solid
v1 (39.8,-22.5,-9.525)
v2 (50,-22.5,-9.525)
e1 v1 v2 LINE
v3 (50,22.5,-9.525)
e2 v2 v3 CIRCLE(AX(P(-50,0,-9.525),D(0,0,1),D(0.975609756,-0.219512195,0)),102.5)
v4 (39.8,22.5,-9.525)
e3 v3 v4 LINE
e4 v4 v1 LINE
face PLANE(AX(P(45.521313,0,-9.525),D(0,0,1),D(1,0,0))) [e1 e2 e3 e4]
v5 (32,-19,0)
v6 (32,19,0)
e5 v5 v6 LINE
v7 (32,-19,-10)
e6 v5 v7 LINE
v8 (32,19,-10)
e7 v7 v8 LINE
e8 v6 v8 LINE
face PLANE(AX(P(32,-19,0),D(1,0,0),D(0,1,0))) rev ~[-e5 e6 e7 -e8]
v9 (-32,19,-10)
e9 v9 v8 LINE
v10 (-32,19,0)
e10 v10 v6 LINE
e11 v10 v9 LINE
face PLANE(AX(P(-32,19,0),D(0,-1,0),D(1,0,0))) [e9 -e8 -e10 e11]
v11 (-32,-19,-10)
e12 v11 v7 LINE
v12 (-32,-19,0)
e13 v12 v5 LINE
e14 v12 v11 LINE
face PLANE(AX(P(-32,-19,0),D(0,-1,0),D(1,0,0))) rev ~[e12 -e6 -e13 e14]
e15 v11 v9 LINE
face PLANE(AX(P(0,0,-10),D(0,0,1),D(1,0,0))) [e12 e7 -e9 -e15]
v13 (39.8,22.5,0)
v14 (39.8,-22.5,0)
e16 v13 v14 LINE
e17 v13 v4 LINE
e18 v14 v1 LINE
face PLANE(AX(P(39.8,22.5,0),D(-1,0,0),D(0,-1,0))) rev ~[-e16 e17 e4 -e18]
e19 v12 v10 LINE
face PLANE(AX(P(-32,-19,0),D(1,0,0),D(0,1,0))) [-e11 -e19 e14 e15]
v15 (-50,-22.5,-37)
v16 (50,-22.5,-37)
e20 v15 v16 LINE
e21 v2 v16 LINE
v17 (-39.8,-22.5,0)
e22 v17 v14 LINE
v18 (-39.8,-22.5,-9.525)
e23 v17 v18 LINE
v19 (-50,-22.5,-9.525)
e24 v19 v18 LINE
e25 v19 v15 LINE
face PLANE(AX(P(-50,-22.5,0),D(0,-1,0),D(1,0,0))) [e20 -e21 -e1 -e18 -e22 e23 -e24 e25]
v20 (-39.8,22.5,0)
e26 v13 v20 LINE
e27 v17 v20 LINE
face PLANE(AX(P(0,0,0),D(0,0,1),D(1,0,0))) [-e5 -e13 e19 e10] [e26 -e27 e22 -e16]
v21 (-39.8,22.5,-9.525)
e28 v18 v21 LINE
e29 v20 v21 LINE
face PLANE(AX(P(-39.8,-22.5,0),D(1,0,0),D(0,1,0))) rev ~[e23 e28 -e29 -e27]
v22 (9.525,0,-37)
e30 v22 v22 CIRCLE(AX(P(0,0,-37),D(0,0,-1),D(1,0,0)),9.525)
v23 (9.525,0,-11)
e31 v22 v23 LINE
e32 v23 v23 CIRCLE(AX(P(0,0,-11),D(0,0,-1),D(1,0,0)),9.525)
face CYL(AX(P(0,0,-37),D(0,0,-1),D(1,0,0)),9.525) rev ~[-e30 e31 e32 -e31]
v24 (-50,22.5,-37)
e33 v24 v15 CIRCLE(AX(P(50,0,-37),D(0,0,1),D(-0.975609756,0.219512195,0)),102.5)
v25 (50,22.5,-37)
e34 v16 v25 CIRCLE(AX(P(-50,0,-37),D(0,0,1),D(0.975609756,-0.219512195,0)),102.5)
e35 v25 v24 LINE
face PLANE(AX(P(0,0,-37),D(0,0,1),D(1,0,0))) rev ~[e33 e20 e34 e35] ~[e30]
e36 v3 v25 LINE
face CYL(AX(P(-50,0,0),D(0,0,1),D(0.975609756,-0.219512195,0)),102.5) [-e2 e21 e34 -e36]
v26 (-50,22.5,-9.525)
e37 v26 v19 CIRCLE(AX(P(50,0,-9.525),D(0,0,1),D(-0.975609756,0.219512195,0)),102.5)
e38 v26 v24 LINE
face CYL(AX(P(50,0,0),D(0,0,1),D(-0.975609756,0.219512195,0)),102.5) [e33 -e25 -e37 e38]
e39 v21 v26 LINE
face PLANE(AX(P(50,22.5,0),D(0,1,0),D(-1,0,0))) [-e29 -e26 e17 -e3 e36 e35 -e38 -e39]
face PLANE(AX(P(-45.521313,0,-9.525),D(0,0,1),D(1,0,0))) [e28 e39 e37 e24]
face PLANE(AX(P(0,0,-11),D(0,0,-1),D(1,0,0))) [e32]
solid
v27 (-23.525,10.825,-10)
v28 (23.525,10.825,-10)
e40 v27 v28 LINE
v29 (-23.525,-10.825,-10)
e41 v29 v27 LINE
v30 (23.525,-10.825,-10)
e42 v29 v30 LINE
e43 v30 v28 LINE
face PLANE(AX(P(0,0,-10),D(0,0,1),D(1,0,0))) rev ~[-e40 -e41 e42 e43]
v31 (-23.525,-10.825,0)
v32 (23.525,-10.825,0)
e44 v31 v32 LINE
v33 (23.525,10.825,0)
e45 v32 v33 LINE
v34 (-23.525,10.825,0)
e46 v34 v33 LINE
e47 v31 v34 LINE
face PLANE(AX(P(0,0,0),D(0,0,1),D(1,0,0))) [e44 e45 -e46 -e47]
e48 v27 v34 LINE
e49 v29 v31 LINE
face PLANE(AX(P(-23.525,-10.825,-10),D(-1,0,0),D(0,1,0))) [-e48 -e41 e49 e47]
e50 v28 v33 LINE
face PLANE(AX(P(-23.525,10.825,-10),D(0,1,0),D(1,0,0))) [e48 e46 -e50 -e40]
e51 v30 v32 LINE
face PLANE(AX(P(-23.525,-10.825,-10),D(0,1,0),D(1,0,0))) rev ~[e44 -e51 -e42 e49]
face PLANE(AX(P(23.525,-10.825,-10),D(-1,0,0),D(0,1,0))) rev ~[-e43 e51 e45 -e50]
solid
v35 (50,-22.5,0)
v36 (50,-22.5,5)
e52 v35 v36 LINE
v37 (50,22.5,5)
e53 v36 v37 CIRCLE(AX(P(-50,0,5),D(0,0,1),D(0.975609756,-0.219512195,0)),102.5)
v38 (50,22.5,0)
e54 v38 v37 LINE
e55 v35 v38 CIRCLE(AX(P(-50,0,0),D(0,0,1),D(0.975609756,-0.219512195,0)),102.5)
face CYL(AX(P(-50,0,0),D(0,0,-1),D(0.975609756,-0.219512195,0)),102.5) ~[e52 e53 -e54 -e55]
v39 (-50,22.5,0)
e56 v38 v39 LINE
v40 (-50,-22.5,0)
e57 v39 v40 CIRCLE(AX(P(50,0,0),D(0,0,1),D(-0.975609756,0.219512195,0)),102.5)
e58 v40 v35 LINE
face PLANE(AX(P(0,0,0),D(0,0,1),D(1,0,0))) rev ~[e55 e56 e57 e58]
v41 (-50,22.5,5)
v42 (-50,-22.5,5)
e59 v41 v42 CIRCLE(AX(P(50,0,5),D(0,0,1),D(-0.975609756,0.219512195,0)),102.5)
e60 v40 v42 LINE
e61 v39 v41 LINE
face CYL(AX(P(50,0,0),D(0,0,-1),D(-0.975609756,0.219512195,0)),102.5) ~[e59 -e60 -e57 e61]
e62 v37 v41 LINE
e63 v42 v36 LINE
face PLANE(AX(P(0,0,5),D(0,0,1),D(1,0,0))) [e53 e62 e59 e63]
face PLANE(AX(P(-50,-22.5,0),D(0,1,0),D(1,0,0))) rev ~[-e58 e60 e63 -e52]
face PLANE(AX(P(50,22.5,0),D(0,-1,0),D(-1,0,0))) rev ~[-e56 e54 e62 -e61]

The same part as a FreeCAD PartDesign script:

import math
import FreeCAD as App
import Part
import Sketcher

V = App.Vector

doc = App.newDocument("Part")
params = doc.addObject("Spreadsheet::Sheet", "Params")
for row, (alias, value) in enumerate([
    ("sketch1_radius", "102.5 mm"),
    ("sketch1_width", "100 mm"),
    ("pad1_length", "37 mm"),
    ("sketch2_width", "64 mm"),
    ("sketch2_height", "38 mm"),
    ("pocket1_length", "10 mm"),
    ("sketch3_radius", "102.5 mm"),
    ("sketch3_height", "45 mm"),
    ("sketch3_width", "10.2 mm"),
    ("pocket2_length", "9.525 mm"),
    ("sketch4_diameter", "19.05 mm"),
    ("pocket3_length", "26 mm"),
    ("sketch5_width", "47.05 mm"),
    ("sketch5_height", "21.65 mm"),
    ("pad2_length", "10 mm"),
    ("sketch6_radius", "102.5 mm"),
    ("sketch6_width", "100 mm"),
    ("pad3_length", "5 mm"),
], start=1):
    params.set(f"A{row}", alias)
    params.set(f"B{row}", "=" + value)
    params.setAlias(f"B{row}", alias)

body = doc.addObject("PartDesign::Body", "Body")

sketch1 = body.newObject("Sketcher::SketchObject", "Sketch")
sketch1.AttachmentSupport = (doc.getObject("XY_Plane"), [""])
sketch1.MapMode = "FlatFace"
sketch1.addGeometry([
    Part.LineSegment(V(50, 22, 0), V(-50, 22, 0)),
    Part.ArcOfCircle(Part.Circle(V(50, 0, 0), V(0, 0, 1), 102), math.radians(167), math.radians(193)),
    Part.LineSegment(V(-50, -22, 0), V(50, -22, 0)),
    Part.ArcOfCircle(Part.Circle(V(-50, 0, 0), V(0, 0, 1), 102), math.radians(-13), math.radians(13)),
], False)
sketch1.addConstraint([
    Sketcher.Constraint("Coincident", 0, 2, 1, 1),
    Sketcher.Constraint("Coincident", 1, 2, 2, 1),
    Sketcher.Constraint("Coincident", 2, 2, 3, 1),
    Sketcher.Constraint("Coincident", 3, 2, 0, 1),
    Sketcher.Constraint("Horizontal", 0),
    Sketcher.Constraint("Horizontal", 2),
    Sketcher.Constraint("Equal", 1, 3),
    Sketcher.Constraint("Symmetric", 1, 3, 3, 3, -1, 1),
    Sketcher.Constraint("Symmetric", 0, 2, 1, 2, -1),
    Sketcher.Constraint("Vertical", 3, 3, 0, 2),
    Sketcher.Constraint("Radius", 1, 102.5),
    Sketcher.Constraint("DistanceX", 0, 2, 0, 1, 100.0),
])
sketch1.setExpression("Constraints[10]", "Params.sketch1_radius")
sketch1.setExpression("Constraints[11]", "Params.sketch1_width")
pad1 = body.newObject("PartDesign::Pad", "Pad")
pad1.Profile = sketch1
pad1.setExpression("Length", "Params.pad1_length")
pad1.Reversed = True

sketch2 = body.newObject("Sketcher::SketchObject", "Sketch001")
sketch2.AttachmentSupport = (doc.getObject("XY_Plane"), [""])
sketch2.MapMode = "FlatFace"
sketch2.addGeometry([
    Part.LineSegment(V(-32, 19, 0), V(-32, -19, 0)),
    Part.LineSegment(V(-32, -19, 0), V(32, -19, 0)),
    Part.LineSegment(V(32, -19, 0), V(32, 19, 0)),
    Part.LineSegment(V(32, 19, 0), V(-32, 19, 0)),
], False)
sketch2.addConstraint([
    Sketcher.Constraint("Coincident", 0, 2, 1, 1),
    Sketcher.Constraint("Coincident", 1, 2, 2, 1),
    Sketcher.Constraint("Coincident", 2, 2, 3, 1),
    Sketcher.Constraint("Coincident", 3, 2, 0, 1),
    Sketcher.Constraint("Vertical", 0),
    Sketcher.Constraint("Horizontal", 1),
    Sketcher.Constraint("Vertical", 2),
    Sketcher.Constraint("Horizontal", 3),
    Sketcher.Constraint("Symmetric", 0, 2, 2, 2, -1, 1),
    Sketcher.Constraint("DistanceX", 1, 1, 1, 2, 64.0),
    Sketcher.Constraint("DistanceY", 0, 2, 0, 1, 38.0),
])
sketch2.setExpression("Constraints[9]", "Params.sketch2_width")
sketch2.setExpression("Constraints[10]", "Params.sketch2_height")
pocket1 = body.newObject("PartDesign::Pocket", "Pocket")
pocket1.Profile = sketch2
pocket1.setExpression("Length", "Params.pocket1_length")

sketch3 = body.newObject("Sketcher::SketchObject", "Sketch002")
sketch3.AttachmentSupport = (doc.getObject("XY_Plane"), [""])
sketch3.MapMode = "FlatFace"
sketch3.addGeometry([
    Part.LineSegment(V(-40, -22, 0), V(-40, 22, 0)),
    Part.LineSegment(V(-40, 22, 0), V(-50, 22, 0)),
    Part.ArcOfCircle(Part.Circle(V(50, 0, 0), V(0, 0, 1), 102), math.radians(167), math.radians(193)),
    Part.LineSegment(V(-50, -22, 0), V(-40, -22, 0)),
    Part.LineSegment(V(50, 22, 0), V(40, 22, 0)),
    Part.LineSegment(V(40, 22, 0), V(40, -22, 0)),
    Part.LineSegment(V(40, -22, 0), V(50, -22, 0)),
    Part.ArcOfCircle(Part.Circle(V(-50, 0, 0), V(0, 0, 1), 102), math.radians(-13), math.radians(13)),
], False)
sketch3.addConstraint([
    Sketcher.Constraint("Coincident", 0, 2, 1, 1),
    Sketcher.Constraint("Coincident", 1, 2, 2, 1),
    Sketcher.Constraint("Coincident", 2, 2, 3, 1),
    Sketcher.Constraint("Coincident", 3, 2, 0, 1),
    Sketcher.Constraint("Coincident", 4, 2, 5, 1),
    Sketcher.Constraint("Coincident", 5, 2, 6, 1),
    Sketcher.Constraint("Coincident", 6, 2, 7, 1),
    Sketcher.Constraint("Coincident", 7, 2, 4, 1),
    Sketcher.Constraint("Vertical", 0),
    Sketcher.Constraint("Horizontal", 1),
    Sketcher.Constraint("Horizontal", 3),
    Sketcher.Constraint("Horizontal", 4),
    Sketcher.Constraint("Vertical", 5),
    Sketcher.Constraint("Horizontal", 6),
    Sketcher.Constraint("Equal", 2, 7),
    Sketcher.Constraint("Symmetric", 2, 3, 7, 3, -1, 1),
    Sketcher.Constraint("Symmetric", 3, 2, 4, 2, -1, 1),
    Sketcher.Constraint("Symmetric", 2, 2, 6, 2, -2),
    Sketcher.Constraint("Horizontal", 1, 2, 4, 2),
    Sketcher.Constraint("Vertical", 7, 3, 1, 2),
    Sketcher.Constraint("Radius", 2, 102.5),
    Sketcher.Constraint("DistanceY", 0, 1, 0, 2, 45.0),
    Sketcher.Constraint("DistanceX", 1, 2, 1, 1, 10.2),
])
sketch3.setExpression("Constraints[20]", "Params.sketch3_radius")
sketch3.setExpression("Constraints[21]", "Params.sketch3_height")
sketch3.setExpression("Constraints[22]", "Params.sketch3_width")
pocket2 = body.newObject("PartDesign::Pocket", "Pocket001")
pocket2.Profile = sketch3
pocket2.setExpression("Length", "Params.pocket2_length")

sketch4 = body.newObject("Sketcher::SketchObject", "Sketch003")
sketch4.AttachmentSupport = (doc.getObject("XY_Plane"), [""])
sketch4.MapMode = "FlatFace"
sketch4.AttachmentOffset = App.Placement(V(0, 0, -37), App.Rotation())
sketch4.addGeometry(Part.Circle(V(0, 0, 0), V(0, 0, 1), 10), False)
sketch4.addConstraint([
    Sketcher.Constraint("Coincident", 0, 3, -1, 1),
    Sketcher.Constraint("Diameter", 0, 19.05),
])
sketch4.setExpression("Constraints[1]", "Params.sketch4_diameter")
pocket3 = body.newObject("PartDesign::Pocket", "Pocket002")
pocket3.Profile = sketch4
pocket3.setExpression("Length", "Params.pocket3_length")
pocket3.Reversed = True
body2 = doc.addObject("PartDesign::Body", "Body001")

sketch5 = body2.newObject("Sketcher::SketchObject", "Sketch004")
sketch5.AttachmentSupport = (doc.getObject("XY_Plane001"), [""])
sketch5.MapMode = "FlatFace"
sketch5.AttachmentOffset = App.Placement(V(0, 0, -10), App.Rotation())
sketch5.addGeometry([
    Part.LineSegment(V(-24, 11, 0), V(-24, -11, 0)),
    Part.LineSegment(V(-24, -11, 0), V(24, -11, 0)),
    Part.LineSegment(V(24, -11, 0), V(24, 11, 0)),
    Part.LineSegment(V(24, 11, 0), V(-24, 11, 0)),
], False)
sketch5.addConstraint([
    Sketcher.Constraint("Coincident", 0, 2, 1, 1),
    Sketcher.Constraint("Coincident", 1, 2, 2, 1),
    Sketcher.Constraint("Coincident", 2, 2, 3, 1),
    Sketcher.Constraint("Coincident", 3, 2, 0, 1),
    Sketcher.Constraint("Vertical", 0),
    Sketcher.Constraint("Horizontal", 1),
    Sketcher.Constraint("Vertical", 2),
    Sketcher.Constraint("Horizontal", 3),
    Sketcher.Constraint("Symmetric", 0, 2, 2, 2, -1, 1),
    Sketcher.Constraint("DistanceX", 1, 1, 1, 2, 47.05),
    Sketcher.Constraint("DistanceY", 0, 2, 0, 1, 21.65),
])
sketch5.setExpression("Constraints[9]", "Params.sketch5_width")
sketch5.setExpression("Constraints[10]", "Params.sketch5_height")
pad2 = body2.newObject("PartDesign::Pad", "Pad001")
pad2.Profile = sketch5
pad2.setExpression("Length", "Params.pad2_length")
body3 = doc.addObject("PartDesign::Body", "Body002")

sketch6 = body3.newObject("Sketcher::SketchObject", "Sketch005")
sketch6.AttachmentSupport = (doc.getObject("XY_Plane002"), [""])
sketch6.MapMode = "FlatFace"
sketch6.addGeometry([
    Part.LineSegment(V(50, 22, 0), V(-50, 22, 0)),
    Part.ArcOfCircle(Part.Circle(V(50, 0, 0), V(0, 0, 1), 102), math.radians(167), math.radians(193)),
    Part.LineSegment(V(-50, -22, 0), V(50, -22, 0)),
    Part.ArcOfCircle(Part.Circle(V(-50, 0, 0), V(0, 0, 1), 102), math.radians(-13), math.radians(13)),
], False)
sketch6.addConstraint([
    Sketcher.Constraint("Coincident", 0, 2, 1, 1),
    Sketcher.Constraint("Coincident", 1, 2, 2, 1),
    Sketcher.Constraint("Coincident", 2, 2, 3, 1),
    Sketcher.Constraint("Coincident", 3, 2, 0, 1),
    Sketcher.Constraint("Horizontal", 0),
    Sketcher.Constraint("Horizontal", 2),
    Sketcher.Constraint("Equal", 1, 3),
    Sketcher.Constraint("Symmetric", 1, 3, 3, 3, -1, 1),
    Sketcher.Constraint("Symmetric", 0, 2, 1, 2, -1),
    Sketcher.Constraint("Vertical", 3, 3, 0, 2),
    Sketcher.Constraint("Radius", 1, 102.5),
    Sketcher.Constraint("DistanceX", 0, 2, 0, 1, 100.0),
])
sketch6.setExpression("Constraints[10]", "Params.sketch6_radius")
sketch6.setExpression("Constraints[11]", "Params.sketch6_width")
pad3 = body3.newObject("PartDesign::Pad", "Pad002")
pad3.Profile = sketch6
pad3.setExpression("Length", "Params.pad3_length")

doc.recompute()
